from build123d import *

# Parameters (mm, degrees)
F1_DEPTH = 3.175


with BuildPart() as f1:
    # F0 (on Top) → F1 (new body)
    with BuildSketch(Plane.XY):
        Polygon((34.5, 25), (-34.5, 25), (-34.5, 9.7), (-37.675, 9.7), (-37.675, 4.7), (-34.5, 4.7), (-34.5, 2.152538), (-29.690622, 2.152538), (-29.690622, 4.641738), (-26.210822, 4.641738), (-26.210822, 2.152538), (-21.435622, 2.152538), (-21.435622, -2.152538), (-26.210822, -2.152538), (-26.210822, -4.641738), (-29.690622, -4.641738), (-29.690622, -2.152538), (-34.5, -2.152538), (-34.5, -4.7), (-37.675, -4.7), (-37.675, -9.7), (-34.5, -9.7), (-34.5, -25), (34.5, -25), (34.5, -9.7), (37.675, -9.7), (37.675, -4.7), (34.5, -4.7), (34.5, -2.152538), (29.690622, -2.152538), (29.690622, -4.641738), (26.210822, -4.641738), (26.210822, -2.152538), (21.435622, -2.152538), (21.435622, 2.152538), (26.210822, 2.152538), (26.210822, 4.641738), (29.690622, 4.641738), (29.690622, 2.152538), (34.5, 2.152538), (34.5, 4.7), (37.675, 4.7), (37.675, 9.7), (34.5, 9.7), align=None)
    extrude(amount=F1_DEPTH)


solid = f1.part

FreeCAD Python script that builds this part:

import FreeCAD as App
import Part
import Sketcher
Q = App.Units.Quantity


def add_polygon(sketch, points):
    """Adds a closed chain of lines whose ends are joined by coincident constraints."""
    first, n = sketch.GeometryCount, len(points)
    for a, b in zip(points, points[1:] + points[:1]):
        sketch.addGeometry(Part.LineSegment(App.Vector(*a, 0), App.Vector(*b, 0)), False)
    for i in range(n):
        sketch.addConstraint(Sketcher.Constraint("Coincident", first + i, 2, first + (i + 1) % n, 1))

doc = App.newDocument("Part")
body = doc.addObject("PartDesign::Body", "Body")

# Sketch on XY plane
sketch1 = body.newObject("Sketcher::SketchObject", "Sketch")
sketch1.AttachmentSupport = (doc.getObject("XY_Plane"), [""])
sketch1.MapMode = "FlatFace"
add_polygon(sketch1, [(34.5, 25), (-34.5, 25), (-34.5, 9.7), (-37.7, 9.7), (-37.7, 4.7), (-34.5, 4.7), (-34.5, 2.2), (-29.7, 2.2), (-29.7, 4.6), (-26.2, 4.6), (-26.2, 2.2), (-21.4, 2.2), (-21.4, -2.2), (-26.2, -2.2), (-26.2, -4.6), (-29.7, -4.6), (-29.7, -2.2), (-34.5, -2.2), (-34.5, -4.7), (-37.7, -4.7), (-37.7, -9.7), (-34.5, -9.7), (-34.5, -25), (34.5, -25), (34.5, -9.7), (37.7, -9.7), (37.7, -4.7), (34.5, -4.7), (34.5, -2.2), (29.7, -2.2), (29.7, -4.6), (26.2, -4.6), (26.2, -2.2), (21.4, -2.2), (21.4, 2.2), (26.2, 2.2), (26.2, 4.6), (29.7, 4.6), (29.7, 2.2), (34.5, 2.2), (34.5, 4.7), (37.7, 4.7), (37.7, 9.7), (34.5, 9.7)])  # lines 0-43
sketch1.addConstraint([
    Sketcher.Constraint("Horizontal", 0),
    Sketcher.Constraint("Vertical", 1),
    Sketcher.Constraint("Horizontal", 2),
    Sketcher.Constraint("Vertical", 3),
    Sketcher.Constraint("Horizontal", 4),
    Sketcher.Constraint("Vertical", 5),
    Sketcher.Constraint("Horizontal", 6),
    Sketcher.Constraint("Vertical", 7),
    Sketcher.Constraint("Horizontal", 8),
    Sketcher.Constraint("Vertical", 9),
    Sketcher.Constraint("Horizontal", 10),
    Sketcher.Constraint("Vertical", 11),
    Sketcher.Constraint("Horizontal", 12),
    Sketcher.Constraint("Vertical", 13),
    Sketcher.Constraint("Horizontal", 14),
    Sketcher.Constraint("Vertical", 15),
    Sketcher.Constraint("Horizontal", 16),
    Sketcher.Constraint("Vertical", 17),
    Sketcher.Constraint("Horizontal", 18),
    Sketcher.Constraint("Vertical", 19),
    Sketcher.Constraint("Horizontal", 20),
    Sketcher.Constraint("Vertical", 21),
    Sketcher.Constraint("Horizontal", 22),
    Sketcher.Constraint("Vertical", 23),
    Sketcher.Constraint("Horizontal", 24),
    Sketcher.Constraint("Vertical", 25),
    Sketcher.Constraint("Horizontal", 26),
    Sketcher.Constraint("Vertical", 27),
    Sketcher.Constraint("Horizontal", 28),
    Sketcher.Constraint("Vertical", 29),
    Sketcher.Constraint("Horizontal", 30),
    Sketcher.Constraint("Vertical", 31),
    Sketcher.Constraint("Horizontal", 32),
    Sketcher.Constraint("Vertical", 33),
    Sketcher.Constraint("Horizontal", 34),
    Sketcher.Constraint("Vertical", 35),
    Sketcher.Constraint("Horizontal", 36),
    Sketcher.Constraint("Vertical", 37),
    Sketcher.Constraint("Horizontal", 38),
    Sketcher.Constraint("Vertical", 39),
    Sketcher.Constraint("Horizontal", 40),
    Sketcher.Constraint("Vertical", 41),
    Sketcher.Constraint("Horizontal", 42),
    Sketcher.Constraint("Vertical", 43),
    Sketcher.Constraint("Symmetric", 0, 2, 22, 2, -1, 1),
    Sketcher.Constraint("Symmetric", 2, 2, 24, 2, -1, 1),
    Sketcher.Constraint("Symmetric", 4, 2, 26, 2, -1, 1),
    Sketcher.Constraint("Symmetric", 6, 2, 28, 2, -1, 1),
    Sketcher.Constraint("Symmetric", 8, 2, 30, 2, -1, 1),
    Sketcher.Constraint("Symmetric", 10, 2, 32, 2, -1, 1),
    Sketcher.Constraint("Symmetric", 12, 2, 34, 2, -1, 1),
    Sketcher.Constraint("Symmetric", 14, 2, 36, 2, -1, 1),
    Sketcher.Constraint("Symmetric", 16, 2, 38, 2, -1, 1),
    Sketcher.Constraint("Symmetric", 18, 2, 40, 2, -1, 1),
    Sketcher.Constraint("Symmetric", 20, 2, 42, 2, -1, 1),
    Sketcher.Constraint("Symmetric", 20, 2, 23, 2, -2),
    Sketcher.Constraint("Symmetric", 18, 2, 25, 2, -2),
    Sketcher.Constraint("Symmetric", 16, 2, 27, 2, -2),
    Sketcher.Constraint("Symmetric", 14, 2, 29, 2, -2),
    Sketcher.Constraint("Symmetric", 12, 2, 31, 2, -2),
    Sketcher.Constraint("Horizontal", 6, 2, 9, 2),
    Sketcher.Constraint("Vertical", 1, 2, 4, 2),
    Sketcher.Constraint("DistanceX", 2, 2, 2, 1, Q("0.125 in")),
    Sketcher.Constraint("DistanceX", 8, 1, 8, 2, Q("0.137 in")),
    Sketcher.Constraint("DistanceX", 10, 1, 10, 2, Q("0.188 in")),
    Sketcher.Constraint("DistanceY", 7, 1, 7, 2, Q("0.098 in")),
    Sketcher.Constraint("DistanceX", 0, 2, 0, 1, 69.0),
    Sketcher.Constraint("DistanceY", 1, 2, 1, 1, 15.3),
    Sketcher.Constraint("DistanceY", 3, 2, 3, 1, 5.0),
    Sketcher.Constraint("DistanceY", -1, 1, 0, 2, 25.0),
    Sketcher.Constraint("DistanceX", 6, 1, 6, 2, 4.809378),
    Sketcher.Constraint("DistanceY", 5, 2, 5, 1, 2.547462),
])
pad1 = body.newObject("PartDesign::Pad", "Pad")
pad1.Profile = sketch1
pad1.Length = Q("0.125 in")

doc.recompute()
